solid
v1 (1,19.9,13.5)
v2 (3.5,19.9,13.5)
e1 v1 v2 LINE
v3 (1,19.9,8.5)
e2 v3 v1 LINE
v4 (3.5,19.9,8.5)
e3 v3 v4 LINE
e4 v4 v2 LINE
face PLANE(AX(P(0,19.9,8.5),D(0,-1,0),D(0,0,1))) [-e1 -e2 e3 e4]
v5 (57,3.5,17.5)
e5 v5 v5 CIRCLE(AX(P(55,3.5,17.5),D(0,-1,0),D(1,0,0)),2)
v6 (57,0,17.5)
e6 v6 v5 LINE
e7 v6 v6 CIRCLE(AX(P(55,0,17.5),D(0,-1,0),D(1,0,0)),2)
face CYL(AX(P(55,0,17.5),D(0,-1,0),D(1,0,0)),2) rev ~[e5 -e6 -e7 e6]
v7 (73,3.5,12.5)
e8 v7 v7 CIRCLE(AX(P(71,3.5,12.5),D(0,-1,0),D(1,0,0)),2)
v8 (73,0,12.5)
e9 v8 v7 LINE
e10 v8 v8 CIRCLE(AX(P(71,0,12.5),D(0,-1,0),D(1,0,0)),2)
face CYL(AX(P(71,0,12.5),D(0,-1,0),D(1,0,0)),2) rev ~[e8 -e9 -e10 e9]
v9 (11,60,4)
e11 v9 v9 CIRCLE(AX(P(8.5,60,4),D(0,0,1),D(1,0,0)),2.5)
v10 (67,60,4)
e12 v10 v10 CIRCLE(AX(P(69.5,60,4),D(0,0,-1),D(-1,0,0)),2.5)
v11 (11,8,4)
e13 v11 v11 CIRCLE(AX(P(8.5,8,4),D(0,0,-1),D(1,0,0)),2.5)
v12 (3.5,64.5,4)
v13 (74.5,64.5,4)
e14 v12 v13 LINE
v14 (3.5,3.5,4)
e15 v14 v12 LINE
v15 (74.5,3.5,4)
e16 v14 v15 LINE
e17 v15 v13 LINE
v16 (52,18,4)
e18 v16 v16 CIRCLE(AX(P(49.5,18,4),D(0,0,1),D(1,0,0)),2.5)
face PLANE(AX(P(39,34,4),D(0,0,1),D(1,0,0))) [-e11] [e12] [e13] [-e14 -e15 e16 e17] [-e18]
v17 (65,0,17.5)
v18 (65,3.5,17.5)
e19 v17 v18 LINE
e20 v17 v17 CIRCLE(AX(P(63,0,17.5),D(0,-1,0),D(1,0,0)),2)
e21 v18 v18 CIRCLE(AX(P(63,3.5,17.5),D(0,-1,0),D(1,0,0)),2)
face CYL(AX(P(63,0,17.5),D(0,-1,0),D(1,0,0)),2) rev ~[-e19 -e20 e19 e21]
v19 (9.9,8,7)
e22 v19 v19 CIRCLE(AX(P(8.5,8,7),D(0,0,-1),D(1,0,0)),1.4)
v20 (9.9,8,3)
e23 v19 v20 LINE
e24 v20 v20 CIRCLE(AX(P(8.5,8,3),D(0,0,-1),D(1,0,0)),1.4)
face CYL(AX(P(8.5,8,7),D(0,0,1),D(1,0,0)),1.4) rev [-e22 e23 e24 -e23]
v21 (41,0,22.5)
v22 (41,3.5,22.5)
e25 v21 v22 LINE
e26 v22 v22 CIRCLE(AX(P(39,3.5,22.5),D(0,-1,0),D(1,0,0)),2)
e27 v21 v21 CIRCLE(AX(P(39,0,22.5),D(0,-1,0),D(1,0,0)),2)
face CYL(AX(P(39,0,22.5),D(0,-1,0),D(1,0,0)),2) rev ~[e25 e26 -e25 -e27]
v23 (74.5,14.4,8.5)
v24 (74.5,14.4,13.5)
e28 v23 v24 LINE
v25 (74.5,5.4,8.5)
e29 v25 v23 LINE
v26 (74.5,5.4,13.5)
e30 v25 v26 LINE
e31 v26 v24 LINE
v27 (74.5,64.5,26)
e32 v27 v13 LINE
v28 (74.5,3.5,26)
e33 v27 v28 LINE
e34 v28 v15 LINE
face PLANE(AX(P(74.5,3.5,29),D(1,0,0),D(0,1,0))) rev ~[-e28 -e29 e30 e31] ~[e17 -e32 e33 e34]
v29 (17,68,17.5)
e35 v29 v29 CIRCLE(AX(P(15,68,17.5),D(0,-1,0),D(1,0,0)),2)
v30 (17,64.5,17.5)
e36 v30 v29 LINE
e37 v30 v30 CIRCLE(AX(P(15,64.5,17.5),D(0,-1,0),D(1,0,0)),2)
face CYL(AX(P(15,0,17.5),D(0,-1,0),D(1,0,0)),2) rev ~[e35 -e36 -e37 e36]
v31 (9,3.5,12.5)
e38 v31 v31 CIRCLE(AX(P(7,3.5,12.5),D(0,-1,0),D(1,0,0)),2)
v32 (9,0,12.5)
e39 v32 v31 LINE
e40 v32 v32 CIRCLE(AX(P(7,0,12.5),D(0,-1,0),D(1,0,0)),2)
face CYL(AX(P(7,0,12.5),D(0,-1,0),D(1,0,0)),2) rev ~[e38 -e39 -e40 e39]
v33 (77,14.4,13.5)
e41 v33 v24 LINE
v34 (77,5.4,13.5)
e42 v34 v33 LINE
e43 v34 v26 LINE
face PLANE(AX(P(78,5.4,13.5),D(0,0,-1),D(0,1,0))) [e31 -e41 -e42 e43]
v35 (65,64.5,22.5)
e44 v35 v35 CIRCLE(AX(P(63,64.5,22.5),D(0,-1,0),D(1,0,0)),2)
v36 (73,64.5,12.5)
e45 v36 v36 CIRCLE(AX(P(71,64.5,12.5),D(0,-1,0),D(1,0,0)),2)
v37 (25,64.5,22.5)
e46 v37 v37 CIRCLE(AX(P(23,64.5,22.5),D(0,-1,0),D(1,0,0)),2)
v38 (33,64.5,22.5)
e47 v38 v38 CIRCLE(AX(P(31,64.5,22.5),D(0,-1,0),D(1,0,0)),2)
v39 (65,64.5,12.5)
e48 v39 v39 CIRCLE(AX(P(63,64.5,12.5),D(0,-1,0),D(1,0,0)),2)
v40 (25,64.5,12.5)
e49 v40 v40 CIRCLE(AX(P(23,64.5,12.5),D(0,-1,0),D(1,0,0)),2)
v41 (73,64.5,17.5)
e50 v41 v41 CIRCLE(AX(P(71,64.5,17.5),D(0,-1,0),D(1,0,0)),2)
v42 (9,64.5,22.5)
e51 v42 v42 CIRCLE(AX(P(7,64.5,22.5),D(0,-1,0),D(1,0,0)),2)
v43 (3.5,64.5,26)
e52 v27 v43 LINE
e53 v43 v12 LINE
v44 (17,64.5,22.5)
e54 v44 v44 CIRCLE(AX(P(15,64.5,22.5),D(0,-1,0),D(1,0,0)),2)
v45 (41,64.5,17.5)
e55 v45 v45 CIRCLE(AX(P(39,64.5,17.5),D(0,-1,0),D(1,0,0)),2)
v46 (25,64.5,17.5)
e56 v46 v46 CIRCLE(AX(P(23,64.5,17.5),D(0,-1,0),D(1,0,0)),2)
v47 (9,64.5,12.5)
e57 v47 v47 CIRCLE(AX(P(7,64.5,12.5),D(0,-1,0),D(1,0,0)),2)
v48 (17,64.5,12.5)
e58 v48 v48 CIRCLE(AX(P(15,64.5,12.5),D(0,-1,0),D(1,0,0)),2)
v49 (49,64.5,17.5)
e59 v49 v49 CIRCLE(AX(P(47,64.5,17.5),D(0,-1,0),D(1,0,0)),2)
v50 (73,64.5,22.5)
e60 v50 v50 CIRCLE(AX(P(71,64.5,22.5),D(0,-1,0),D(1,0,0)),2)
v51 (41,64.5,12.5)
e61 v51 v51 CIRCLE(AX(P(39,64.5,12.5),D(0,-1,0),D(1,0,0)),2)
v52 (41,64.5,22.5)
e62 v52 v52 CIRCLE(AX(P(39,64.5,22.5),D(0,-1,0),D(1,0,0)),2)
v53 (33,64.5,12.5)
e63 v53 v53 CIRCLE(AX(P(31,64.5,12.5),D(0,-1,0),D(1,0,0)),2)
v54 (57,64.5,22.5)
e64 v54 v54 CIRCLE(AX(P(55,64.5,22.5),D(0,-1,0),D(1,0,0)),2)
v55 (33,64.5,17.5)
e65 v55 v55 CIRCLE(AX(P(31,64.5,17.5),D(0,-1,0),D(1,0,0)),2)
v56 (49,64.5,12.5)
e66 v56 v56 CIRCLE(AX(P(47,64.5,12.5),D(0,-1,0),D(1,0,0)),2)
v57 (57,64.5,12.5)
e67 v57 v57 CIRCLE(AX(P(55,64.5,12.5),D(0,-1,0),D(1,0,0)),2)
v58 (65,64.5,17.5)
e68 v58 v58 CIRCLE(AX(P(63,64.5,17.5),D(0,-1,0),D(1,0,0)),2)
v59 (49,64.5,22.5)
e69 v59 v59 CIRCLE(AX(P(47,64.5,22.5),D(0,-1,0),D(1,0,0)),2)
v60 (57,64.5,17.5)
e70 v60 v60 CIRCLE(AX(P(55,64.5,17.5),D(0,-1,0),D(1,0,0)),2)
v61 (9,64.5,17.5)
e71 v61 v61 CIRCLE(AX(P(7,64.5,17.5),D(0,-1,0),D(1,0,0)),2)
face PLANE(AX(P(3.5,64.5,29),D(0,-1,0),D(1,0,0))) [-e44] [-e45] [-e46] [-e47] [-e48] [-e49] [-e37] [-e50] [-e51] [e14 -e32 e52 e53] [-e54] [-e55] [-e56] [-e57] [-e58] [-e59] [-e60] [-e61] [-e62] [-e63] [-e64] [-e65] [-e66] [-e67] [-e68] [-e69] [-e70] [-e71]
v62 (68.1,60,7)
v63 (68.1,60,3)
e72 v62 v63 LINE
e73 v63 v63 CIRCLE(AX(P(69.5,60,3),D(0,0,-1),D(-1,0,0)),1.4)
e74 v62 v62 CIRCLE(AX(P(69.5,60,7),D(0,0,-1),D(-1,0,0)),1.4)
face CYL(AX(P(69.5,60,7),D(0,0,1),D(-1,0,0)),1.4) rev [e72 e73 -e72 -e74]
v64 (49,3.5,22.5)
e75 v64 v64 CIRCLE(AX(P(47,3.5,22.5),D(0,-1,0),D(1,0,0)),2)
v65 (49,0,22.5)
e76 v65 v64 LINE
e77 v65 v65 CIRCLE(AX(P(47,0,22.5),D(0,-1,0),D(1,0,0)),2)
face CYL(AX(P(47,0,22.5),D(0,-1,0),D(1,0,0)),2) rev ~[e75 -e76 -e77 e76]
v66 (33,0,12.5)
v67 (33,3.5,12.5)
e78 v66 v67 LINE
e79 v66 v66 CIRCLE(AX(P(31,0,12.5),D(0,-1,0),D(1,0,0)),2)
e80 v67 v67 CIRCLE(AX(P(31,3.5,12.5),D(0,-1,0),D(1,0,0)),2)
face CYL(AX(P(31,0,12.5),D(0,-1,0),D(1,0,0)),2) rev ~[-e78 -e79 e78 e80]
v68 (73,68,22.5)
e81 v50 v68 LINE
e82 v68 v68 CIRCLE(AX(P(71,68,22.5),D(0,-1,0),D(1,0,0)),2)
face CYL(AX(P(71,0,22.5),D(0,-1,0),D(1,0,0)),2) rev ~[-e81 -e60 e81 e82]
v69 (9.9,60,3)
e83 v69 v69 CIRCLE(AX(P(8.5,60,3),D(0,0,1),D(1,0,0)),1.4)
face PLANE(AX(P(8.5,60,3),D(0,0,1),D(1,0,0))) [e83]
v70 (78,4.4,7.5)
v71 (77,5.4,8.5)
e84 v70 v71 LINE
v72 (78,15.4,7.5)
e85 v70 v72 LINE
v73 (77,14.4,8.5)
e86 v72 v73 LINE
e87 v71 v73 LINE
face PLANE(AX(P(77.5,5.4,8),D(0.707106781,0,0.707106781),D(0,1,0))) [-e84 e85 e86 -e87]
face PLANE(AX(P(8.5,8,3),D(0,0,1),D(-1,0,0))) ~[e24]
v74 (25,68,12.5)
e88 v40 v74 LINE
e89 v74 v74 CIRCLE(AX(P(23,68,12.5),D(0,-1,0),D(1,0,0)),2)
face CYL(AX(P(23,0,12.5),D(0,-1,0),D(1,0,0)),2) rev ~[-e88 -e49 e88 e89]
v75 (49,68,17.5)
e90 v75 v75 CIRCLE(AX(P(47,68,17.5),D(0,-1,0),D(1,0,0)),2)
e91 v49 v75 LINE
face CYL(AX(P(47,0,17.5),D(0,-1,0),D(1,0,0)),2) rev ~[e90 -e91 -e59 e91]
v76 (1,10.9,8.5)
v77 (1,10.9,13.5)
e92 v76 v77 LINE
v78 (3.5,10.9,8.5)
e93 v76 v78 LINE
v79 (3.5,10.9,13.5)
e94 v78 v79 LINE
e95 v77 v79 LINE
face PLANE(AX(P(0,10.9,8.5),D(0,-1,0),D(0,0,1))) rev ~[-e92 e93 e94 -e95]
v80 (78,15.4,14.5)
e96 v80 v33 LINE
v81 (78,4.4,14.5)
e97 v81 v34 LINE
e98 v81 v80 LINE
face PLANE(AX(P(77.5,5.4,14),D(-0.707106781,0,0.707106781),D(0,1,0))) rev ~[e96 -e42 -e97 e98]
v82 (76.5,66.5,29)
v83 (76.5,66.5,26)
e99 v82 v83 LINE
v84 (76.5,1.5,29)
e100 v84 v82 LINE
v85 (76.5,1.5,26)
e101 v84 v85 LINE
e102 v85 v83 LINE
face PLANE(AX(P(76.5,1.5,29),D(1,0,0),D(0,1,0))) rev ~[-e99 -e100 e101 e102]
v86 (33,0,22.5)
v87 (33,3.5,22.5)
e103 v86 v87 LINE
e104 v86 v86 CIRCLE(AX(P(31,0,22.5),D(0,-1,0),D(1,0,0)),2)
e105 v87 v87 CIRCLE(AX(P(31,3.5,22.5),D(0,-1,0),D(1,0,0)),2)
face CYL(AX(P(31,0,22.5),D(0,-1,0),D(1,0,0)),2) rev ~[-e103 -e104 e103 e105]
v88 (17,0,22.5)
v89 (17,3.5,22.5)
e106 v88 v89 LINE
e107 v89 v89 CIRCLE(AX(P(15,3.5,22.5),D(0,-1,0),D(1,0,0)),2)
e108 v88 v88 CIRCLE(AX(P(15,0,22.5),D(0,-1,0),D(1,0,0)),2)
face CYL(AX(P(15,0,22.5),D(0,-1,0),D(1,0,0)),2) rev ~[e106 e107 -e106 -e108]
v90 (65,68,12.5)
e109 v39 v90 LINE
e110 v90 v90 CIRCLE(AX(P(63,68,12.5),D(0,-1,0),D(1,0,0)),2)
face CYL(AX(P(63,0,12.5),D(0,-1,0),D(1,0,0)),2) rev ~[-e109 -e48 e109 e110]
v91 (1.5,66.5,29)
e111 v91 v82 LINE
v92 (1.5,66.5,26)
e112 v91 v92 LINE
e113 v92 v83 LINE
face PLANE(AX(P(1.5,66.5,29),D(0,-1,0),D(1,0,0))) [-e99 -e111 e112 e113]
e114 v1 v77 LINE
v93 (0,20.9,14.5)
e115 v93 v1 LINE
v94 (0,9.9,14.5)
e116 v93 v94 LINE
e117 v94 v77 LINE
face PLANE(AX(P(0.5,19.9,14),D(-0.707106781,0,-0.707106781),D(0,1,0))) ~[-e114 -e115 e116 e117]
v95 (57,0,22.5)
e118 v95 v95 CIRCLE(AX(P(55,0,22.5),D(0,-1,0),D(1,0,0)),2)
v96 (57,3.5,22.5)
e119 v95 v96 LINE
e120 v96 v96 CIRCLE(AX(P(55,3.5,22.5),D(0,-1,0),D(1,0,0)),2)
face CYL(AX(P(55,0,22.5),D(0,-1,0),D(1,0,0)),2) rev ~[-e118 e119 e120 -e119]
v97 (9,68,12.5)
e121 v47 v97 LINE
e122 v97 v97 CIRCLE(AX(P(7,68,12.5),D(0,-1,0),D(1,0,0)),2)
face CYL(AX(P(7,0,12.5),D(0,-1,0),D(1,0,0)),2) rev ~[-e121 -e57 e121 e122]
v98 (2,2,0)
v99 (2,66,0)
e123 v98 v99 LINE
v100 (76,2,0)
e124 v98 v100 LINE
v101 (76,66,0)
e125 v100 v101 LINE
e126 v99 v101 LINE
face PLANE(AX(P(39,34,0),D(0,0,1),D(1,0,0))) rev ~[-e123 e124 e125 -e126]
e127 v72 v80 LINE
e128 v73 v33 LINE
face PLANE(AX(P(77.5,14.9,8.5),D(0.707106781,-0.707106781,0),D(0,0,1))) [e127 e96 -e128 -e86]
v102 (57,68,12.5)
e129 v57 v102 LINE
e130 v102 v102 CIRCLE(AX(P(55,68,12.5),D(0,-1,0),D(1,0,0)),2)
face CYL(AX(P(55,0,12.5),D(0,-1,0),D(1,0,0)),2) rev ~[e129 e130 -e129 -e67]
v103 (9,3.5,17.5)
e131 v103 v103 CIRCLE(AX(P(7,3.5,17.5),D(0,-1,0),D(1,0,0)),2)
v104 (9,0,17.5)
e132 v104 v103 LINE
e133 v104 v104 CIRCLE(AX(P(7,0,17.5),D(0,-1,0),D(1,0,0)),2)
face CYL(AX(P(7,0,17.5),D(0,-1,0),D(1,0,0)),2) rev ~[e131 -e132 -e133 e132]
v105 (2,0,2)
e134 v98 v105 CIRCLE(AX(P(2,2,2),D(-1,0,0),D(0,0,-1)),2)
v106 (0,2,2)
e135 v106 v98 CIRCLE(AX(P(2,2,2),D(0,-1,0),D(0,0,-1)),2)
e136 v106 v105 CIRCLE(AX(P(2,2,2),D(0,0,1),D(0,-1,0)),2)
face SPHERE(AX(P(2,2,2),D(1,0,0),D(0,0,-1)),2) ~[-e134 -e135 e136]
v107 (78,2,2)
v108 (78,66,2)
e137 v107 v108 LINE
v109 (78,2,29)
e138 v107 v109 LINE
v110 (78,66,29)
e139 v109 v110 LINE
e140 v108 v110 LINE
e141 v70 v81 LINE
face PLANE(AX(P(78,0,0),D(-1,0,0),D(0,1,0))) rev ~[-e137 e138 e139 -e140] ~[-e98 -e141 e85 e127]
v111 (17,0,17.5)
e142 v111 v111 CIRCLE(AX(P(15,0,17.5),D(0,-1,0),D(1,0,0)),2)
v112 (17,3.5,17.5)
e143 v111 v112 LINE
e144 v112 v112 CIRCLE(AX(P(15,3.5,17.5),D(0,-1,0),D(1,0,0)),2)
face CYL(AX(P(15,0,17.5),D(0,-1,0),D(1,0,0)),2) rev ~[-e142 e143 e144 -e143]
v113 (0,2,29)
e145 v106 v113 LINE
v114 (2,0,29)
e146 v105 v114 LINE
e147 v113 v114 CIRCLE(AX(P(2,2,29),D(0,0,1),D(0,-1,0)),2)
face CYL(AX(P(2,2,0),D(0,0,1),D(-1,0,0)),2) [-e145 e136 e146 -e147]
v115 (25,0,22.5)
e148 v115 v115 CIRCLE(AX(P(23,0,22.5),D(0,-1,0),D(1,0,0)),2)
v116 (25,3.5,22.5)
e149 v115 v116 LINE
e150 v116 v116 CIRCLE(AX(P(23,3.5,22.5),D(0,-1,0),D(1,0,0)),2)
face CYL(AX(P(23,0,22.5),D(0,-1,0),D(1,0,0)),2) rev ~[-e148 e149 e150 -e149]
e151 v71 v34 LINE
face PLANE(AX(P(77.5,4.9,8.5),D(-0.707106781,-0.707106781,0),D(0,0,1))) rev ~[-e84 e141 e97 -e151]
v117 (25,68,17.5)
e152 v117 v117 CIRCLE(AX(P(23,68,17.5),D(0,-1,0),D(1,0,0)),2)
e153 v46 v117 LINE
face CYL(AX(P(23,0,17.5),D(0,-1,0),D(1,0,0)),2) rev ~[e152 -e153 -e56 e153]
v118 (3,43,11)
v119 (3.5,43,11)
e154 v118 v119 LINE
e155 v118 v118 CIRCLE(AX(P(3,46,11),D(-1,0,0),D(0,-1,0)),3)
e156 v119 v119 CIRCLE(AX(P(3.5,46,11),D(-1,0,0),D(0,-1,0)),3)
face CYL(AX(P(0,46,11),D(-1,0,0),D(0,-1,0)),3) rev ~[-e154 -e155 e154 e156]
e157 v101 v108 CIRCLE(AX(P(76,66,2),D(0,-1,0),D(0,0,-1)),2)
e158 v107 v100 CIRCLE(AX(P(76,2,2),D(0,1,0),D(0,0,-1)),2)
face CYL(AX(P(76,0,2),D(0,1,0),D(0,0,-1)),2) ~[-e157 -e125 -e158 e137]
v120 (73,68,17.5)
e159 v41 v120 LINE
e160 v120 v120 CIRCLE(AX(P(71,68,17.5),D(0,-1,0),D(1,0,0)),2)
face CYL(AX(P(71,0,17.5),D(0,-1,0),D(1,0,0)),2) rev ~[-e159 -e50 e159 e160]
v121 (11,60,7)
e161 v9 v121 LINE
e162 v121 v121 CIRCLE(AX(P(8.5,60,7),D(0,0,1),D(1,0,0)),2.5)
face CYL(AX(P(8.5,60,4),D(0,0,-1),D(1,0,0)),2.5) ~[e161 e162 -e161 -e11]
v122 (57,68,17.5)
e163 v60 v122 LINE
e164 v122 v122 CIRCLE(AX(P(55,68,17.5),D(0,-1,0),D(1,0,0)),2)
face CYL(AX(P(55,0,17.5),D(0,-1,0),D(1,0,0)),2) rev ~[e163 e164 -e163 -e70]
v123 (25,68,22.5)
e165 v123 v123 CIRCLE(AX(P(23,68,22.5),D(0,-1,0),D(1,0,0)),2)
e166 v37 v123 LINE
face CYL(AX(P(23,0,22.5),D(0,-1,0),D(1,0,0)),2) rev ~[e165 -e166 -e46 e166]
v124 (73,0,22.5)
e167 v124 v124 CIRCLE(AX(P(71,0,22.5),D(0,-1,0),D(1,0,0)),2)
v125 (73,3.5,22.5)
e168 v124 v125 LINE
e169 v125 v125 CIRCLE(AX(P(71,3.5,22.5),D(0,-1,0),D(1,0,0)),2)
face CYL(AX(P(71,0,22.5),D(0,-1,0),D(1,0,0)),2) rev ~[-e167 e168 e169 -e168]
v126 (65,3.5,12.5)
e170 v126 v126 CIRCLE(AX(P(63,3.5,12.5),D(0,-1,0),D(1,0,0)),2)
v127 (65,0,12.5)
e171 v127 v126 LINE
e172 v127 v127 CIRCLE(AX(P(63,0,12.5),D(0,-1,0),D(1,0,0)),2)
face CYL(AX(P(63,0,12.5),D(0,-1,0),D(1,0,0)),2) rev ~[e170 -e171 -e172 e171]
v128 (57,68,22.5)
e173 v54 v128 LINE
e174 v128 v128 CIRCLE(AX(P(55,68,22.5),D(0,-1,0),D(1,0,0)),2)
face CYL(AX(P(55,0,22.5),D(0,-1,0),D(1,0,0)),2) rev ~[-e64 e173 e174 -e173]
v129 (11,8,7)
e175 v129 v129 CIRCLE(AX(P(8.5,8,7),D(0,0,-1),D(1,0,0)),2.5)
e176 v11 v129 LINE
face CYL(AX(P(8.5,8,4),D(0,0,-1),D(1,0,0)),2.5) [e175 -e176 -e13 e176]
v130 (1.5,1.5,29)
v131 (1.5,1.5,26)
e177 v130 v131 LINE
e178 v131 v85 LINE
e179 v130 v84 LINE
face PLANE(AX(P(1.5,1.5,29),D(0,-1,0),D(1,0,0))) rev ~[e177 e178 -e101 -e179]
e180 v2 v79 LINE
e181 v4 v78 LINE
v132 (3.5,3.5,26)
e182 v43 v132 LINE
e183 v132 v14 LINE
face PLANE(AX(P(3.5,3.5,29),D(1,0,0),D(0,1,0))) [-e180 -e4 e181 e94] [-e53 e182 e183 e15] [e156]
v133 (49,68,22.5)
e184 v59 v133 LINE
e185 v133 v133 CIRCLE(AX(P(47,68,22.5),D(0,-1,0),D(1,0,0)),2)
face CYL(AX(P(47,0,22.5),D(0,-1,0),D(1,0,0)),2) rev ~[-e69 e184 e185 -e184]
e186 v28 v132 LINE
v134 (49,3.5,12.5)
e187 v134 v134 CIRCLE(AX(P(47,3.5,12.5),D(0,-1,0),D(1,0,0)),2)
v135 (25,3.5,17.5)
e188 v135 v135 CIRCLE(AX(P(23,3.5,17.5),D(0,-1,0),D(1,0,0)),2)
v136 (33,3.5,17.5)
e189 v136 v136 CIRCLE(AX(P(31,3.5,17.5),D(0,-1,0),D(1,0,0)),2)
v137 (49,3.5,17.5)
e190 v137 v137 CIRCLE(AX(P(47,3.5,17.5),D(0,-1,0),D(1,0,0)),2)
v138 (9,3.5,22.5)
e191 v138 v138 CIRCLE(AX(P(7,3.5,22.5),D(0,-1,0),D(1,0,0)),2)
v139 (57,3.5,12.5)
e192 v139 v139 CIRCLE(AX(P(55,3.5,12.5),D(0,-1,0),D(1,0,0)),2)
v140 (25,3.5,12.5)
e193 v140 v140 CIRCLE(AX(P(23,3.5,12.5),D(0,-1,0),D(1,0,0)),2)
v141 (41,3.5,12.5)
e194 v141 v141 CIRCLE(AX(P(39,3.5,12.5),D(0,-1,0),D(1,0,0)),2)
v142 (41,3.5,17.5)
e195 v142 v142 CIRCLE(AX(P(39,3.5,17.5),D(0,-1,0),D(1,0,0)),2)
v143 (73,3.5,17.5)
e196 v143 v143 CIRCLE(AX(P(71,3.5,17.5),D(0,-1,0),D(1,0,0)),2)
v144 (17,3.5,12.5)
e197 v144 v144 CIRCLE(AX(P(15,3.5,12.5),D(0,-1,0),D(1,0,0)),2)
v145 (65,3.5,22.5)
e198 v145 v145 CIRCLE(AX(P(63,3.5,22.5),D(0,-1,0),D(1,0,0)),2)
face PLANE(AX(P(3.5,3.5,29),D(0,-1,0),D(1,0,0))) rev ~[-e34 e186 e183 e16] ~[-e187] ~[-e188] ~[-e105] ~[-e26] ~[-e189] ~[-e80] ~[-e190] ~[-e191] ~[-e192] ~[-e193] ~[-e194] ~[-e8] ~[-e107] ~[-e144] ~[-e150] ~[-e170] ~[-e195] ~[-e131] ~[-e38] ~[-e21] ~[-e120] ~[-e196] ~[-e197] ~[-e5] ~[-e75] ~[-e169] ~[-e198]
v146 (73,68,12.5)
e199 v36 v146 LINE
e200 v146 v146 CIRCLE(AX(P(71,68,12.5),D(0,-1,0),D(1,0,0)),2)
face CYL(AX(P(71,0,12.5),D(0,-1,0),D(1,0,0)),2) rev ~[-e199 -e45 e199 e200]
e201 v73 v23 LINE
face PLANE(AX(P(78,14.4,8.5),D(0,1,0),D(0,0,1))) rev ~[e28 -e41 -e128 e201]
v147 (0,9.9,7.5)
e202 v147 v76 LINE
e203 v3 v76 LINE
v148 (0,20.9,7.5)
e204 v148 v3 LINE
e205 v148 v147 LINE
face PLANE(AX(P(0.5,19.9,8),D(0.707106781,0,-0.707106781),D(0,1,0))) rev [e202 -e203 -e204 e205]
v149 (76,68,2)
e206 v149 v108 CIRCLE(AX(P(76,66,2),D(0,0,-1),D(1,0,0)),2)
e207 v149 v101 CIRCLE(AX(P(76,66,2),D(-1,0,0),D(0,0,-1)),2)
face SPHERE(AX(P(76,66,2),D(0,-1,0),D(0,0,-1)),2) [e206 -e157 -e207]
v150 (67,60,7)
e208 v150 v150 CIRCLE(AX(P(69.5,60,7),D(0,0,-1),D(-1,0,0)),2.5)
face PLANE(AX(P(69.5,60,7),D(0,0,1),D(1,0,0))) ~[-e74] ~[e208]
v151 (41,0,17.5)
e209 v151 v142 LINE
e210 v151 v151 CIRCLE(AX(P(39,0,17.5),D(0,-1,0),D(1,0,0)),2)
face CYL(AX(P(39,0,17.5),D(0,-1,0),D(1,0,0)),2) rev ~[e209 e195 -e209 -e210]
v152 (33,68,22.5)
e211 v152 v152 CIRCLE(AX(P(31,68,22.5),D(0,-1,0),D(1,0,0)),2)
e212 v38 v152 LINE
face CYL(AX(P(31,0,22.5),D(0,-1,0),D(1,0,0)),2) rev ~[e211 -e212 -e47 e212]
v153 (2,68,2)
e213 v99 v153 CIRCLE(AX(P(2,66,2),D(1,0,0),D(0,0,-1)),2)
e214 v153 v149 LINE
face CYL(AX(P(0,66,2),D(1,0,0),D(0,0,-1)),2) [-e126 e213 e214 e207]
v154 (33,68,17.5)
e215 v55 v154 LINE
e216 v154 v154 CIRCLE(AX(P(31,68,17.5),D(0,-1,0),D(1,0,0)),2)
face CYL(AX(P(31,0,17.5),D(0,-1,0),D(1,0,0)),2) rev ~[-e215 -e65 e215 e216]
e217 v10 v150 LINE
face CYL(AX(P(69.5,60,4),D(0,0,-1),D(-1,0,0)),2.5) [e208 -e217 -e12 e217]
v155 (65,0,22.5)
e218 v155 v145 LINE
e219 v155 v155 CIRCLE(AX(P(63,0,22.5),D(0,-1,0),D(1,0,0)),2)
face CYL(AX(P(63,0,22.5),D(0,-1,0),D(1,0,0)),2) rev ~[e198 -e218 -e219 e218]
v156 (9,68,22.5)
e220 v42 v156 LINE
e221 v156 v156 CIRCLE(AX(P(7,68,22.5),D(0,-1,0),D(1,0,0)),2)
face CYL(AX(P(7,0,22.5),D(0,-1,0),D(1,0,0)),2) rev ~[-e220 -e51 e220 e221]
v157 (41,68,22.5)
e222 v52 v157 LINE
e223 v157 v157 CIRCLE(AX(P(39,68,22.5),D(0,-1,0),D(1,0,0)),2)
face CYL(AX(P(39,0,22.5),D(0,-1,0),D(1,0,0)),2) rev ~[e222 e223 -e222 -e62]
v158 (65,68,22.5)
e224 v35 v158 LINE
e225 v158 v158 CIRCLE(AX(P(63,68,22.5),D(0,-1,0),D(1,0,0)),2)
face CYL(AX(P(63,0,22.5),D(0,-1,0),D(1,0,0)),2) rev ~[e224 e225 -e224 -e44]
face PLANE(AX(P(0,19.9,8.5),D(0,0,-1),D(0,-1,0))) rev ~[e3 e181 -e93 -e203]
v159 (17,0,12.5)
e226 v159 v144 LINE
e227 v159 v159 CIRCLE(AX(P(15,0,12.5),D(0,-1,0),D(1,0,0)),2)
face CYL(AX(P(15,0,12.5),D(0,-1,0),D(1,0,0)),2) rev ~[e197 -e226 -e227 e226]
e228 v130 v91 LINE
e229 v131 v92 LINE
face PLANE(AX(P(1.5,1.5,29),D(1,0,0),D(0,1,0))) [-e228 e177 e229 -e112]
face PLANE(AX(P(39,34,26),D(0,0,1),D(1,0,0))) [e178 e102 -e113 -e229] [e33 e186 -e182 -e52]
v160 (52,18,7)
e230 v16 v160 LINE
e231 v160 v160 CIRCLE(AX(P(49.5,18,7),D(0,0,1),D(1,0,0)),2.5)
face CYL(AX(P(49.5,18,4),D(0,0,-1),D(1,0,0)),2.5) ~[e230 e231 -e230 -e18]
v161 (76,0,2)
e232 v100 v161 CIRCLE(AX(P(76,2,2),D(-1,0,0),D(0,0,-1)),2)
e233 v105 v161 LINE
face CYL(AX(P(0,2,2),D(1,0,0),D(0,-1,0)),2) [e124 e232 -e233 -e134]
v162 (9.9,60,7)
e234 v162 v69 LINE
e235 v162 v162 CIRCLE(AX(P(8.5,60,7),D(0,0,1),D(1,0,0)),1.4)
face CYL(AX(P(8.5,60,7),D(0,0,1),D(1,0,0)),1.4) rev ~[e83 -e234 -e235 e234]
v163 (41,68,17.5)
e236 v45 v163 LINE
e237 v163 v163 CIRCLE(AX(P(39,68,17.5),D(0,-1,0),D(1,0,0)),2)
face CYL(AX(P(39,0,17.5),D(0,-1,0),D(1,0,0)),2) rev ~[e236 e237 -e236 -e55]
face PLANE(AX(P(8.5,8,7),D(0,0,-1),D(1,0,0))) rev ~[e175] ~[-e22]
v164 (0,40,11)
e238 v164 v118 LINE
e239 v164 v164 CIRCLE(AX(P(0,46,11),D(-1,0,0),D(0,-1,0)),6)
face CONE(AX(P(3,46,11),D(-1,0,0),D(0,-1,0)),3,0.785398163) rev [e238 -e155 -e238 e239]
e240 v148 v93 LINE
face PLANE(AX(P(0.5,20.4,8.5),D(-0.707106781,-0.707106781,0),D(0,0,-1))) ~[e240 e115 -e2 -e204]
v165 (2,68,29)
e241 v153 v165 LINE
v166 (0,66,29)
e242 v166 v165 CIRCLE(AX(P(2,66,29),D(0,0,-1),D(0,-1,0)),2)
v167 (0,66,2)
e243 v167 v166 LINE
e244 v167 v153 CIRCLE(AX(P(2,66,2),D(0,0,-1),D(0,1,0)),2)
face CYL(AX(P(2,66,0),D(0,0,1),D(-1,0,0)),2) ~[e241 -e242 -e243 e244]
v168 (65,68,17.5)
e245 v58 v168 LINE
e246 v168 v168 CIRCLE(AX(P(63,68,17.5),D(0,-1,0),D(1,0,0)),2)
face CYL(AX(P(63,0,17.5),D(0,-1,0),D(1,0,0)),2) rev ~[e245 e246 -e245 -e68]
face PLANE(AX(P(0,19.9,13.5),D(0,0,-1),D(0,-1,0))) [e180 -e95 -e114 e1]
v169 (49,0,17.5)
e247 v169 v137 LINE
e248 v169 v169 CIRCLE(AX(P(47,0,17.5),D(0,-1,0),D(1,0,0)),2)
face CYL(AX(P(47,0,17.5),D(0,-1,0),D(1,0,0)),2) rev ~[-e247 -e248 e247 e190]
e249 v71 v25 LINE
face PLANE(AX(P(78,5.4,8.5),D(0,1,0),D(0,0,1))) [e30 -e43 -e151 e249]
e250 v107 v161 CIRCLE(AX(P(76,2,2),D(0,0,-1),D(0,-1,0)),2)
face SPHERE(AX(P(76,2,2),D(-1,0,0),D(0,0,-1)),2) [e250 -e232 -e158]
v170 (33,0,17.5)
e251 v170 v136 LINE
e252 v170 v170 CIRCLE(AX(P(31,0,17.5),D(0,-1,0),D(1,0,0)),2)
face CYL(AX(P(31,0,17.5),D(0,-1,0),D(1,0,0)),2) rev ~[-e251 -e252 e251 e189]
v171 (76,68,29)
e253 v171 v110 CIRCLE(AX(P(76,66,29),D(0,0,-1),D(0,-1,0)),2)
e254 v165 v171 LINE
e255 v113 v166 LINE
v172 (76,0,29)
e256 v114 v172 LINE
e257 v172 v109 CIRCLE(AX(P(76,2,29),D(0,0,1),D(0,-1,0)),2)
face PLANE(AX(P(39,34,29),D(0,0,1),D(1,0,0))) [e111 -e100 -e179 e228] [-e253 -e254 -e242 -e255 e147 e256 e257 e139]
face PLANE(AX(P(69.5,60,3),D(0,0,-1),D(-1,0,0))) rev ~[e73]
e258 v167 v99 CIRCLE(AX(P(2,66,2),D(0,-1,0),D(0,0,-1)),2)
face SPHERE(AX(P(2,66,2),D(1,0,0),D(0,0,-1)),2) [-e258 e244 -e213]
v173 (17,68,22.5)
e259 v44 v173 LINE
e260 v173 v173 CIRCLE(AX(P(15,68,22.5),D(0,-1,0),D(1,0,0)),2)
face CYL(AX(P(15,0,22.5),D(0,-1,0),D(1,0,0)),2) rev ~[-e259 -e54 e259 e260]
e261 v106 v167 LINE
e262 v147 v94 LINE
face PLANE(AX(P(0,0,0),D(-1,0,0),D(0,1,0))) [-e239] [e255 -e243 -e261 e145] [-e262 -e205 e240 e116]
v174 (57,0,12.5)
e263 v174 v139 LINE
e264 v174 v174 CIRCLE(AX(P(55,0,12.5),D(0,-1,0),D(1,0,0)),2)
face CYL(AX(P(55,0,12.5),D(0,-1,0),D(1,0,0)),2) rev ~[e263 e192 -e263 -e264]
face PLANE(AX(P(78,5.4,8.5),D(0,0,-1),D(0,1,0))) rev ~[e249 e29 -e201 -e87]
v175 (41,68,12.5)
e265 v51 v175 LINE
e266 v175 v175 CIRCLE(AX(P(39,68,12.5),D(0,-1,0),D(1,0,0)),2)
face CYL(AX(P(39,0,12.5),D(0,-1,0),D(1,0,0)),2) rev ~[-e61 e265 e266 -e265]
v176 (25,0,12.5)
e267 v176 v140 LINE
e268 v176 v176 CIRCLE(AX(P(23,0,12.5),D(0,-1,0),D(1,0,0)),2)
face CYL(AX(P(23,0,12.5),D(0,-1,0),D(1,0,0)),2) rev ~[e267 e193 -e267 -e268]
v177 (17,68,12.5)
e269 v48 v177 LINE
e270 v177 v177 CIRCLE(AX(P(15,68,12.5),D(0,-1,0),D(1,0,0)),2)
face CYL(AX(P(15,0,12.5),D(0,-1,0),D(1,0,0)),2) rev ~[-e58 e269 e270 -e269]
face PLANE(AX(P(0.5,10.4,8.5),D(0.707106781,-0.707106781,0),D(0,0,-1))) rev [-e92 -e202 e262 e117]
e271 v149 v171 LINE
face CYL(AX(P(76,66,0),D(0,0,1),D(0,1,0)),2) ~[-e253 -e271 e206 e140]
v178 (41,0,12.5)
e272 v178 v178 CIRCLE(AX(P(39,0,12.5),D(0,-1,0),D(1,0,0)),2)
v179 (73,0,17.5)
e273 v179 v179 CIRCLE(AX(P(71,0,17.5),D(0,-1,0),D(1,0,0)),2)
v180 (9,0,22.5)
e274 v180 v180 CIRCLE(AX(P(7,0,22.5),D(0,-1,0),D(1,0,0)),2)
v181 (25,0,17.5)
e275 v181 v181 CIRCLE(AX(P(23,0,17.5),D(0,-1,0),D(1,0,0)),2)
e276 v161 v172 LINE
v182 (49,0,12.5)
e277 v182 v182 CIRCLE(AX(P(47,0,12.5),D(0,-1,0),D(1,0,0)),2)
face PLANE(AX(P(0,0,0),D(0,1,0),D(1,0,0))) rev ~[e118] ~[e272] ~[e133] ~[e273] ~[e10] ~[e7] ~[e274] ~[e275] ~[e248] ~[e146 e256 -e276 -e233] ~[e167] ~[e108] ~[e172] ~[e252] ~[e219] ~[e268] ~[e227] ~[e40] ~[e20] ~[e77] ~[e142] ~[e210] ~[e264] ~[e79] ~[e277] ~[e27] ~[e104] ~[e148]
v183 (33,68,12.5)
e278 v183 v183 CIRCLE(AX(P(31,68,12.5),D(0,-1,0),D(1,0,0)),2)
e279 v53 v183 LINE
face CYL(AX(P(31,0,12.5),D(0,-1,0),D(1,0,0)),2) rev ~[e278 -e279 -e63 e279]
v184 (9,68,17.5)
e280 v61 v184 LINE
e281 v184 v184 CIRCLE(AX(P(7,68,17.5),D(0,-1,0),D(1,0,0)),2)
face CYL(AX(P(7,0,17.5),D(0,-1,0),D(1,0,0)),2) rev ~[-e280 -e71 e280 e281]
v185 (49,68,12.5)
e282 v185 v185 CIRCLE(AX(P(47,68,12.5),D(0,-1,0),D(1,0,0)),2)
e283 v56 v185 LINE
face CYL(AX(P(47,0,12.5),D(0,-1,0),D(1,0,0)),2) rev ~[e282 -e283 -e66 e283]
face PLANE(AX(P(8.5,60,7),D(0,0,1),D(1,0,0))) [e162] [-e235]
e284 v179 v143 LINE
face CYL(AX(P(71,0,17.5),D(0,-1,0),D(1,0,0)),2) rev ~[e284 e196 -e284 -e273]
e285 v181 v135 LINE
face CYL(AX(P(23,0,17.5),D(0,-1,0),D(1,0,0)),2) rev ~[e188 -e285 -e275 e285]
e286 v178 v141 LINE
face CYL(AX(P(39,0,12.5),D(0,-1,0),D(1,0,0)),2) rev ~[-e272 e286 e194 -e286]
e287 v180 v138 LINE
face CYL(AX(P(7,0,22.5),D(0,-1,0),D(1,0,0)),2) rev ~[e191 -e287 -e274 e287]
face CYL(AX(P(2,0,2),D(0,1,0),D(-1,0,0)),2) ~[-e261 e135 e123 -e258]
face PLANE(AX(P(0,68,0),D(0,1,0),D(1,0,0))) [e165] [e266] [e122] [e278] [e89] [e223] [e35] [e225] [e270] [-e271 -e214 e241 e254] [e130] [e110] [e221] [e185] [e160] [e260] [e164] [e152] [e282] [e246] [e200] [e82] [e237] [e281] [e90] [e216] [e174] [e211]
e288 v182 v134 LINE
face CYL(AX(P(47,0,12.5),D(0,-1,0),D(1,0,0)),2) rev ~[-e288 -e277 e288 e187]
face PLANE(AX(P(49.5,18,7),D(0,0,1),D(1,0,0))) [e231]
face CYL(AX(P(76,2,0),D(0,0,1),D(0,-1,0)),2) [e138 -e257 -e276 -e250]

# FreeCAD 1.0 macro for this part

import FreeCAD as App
import Part
import Sketcher
Q = App.Units.Quantity


def edges_at(feature, points):
    """Names of the edges that pass closest to the given points."""
    edges = feature.Shape.Edges
    near = lambda p: min(range(len(edges)), key=lambda i: edges[i].distToShape(Part.Vertex(*p))[0])
    return sorted({f"Edge{near(p) + 1}" for p in points})


def add_polygon(sketch, points):
    """Adds a closed chain of lines whose ends are joined by coincident constraints."""
    first, n = sketch.GeometryCount, len(points)
    for a, b in zip(points, points[1:] + points[:1]):
        sketch.addGeometry(Part.LineSegment(App.Vector(*a, 0), App.Vector(*b, 0)), False)
    for i in range(n):
        sketch.addConstraint(Sketcher.Constraint("Coincident", first + i, 2, first + (i + 1) % n, 1))

doc = App.newDocument("Part")
body = doc.addObject("PartDesign::Body", "Body")

# Sketch on XY plane
sketch1 = body.newObject("Sketcher::SketchObject", "Sketch")
sketch1.AttachmentSupport = (doc.getObject("XY_Plane"), [""])
sketch1.MapMode = "FlatFace"
add_polygon(sketch1, [(0, 68), (0, 0), (78, 0), (78, 68)])  # lines 0-3
sketch1.addConstraint([
    Sketcher.Constraint("Vertical", 0),
    Sketcher.Constraint("Horizontal", 1),
    Sketcher.Constraint("Vertical", 2),
    Sketcher.Constraint("Horizontal", 3),
    Sketcher.Constraint("Coincident", 0, 2, -1, 1),
    Sketcher.Constraint("DistanceX", 1, 1, 1, 2, Q("78 mm")),
    Sketcher.Constraint("DistanceY", 0, 2, 0, 1, Q("68 mm")),
])
pad1 = body.newObject("PartDesign::Pad", "Pad")
pad1.Profile = sketch1
pad1.Length = 29

# Sketch on XY plane
sketch2 = body.newObject("Sketcher::SketchObject", "Sketch001")
sketch2.AttachmentSupport = (doc.getObject("XY_Plane"), [""])
sketch2.MapMode = "FlatFace"
sketch2.AttachmentOffset = App.Placement(App.Vector(0, 0, 29), App.Rotation())
add_polygon(sketch2, [(3.5, 64.5), (3.5, 3.5), (74.5, 3.5), (74.5, 64.5)])  # lines 0-3
sketch2.addConstraint([
    Sketcher.Constraint("Vertical", 0),
    Sketcher.Constraint("Horizontal", 1),
    Sketcher.Constraint("Vertical", 2),
    Sketcher.Constraint("Horizontal", 3),
    Sketcher.Constraint("DistanceX", 1, 1, 1, 2, Q("71 mm")),
    Sketcher.Constraint("DistanceY", 0, 2, 0, 1, Q("61 mm")),
    Sketcher.Constraint("DistanceX", -1, 1, 0, 2, Q("3.5 mm")),
    Sketcher.Constraint("DistanceY", -1, 1, 0, 2, Q("3.5 mm")),
])
pocket1 = body.newObject("PartDesign::Pocket", "Pocket")
pocket1.Profile = sketch2
pocket1.Length = 25

# Sketch on XY plane
sketch3 = body.newObject("Sketcher::SketchObject", "Sketch002")
sketch3.AttachmentSupport = (doc.getObject("XY_Plane"), [""])
sketch3.MapMode = "FlatFace"
sketch3.AttachmentOffset = App.Placement(App.Vector(0, 0, 4), App.Rotation())
sketch3.addGeometry(Part.Circle(App.Vector(8.5, 60, 0), App.Vector(0, 0, 1), 2.5), False)
sketch3.addConstraint([
    Sketcher.Constraint("Diameter", 0, Q("5 mm")),
    Sketcher.Constraint("DistanceY", -1, 1, 0, 3, Q("60 mm")),
    Sketcher.Constraint("DistanceX", -1, 1, 0, 3, Q("8.5 mm")),
])
pad2 = body.newObject("PartDesign::Pad", "Pad001")
pad2.Profile = sketch3
pad2.Length = 3

# Sketch on XY plane
sketch4 = body.newObject("Sketcher::SketchObject", "Sketch003")
sketch4.AttachmentSupport = (doc.getObject("XY_Plane"), [""])
sketch4.MapMode = "FlatFace"
sketch4.AttachmentOffset = App.Placement(App.Vector(0, 0, 4), App.Rotation())
sketch4.addGeometry(Part.Circle(App.Vector(8.5, 8, 0), App.Vector(0, 0, 1), 2.5), False)
sketch4.addConstraint([
    Sketcher.Constraint("Diameter", 0, Q("5 mm")),
    Sketcher.Constraint("DistanceY", -1, 1, 0, 3, Q("8 mm")),
    Sketcher.Constraint("DistanceX", -1, 1, 0, 3, Q("8.5 mm")),
])
pad3 = body.newObject("PartDesign::Pad", "Pad002")
pad3.Profile = sketch4
pad3.Length = 3
doc.recompute()

datumplane = body.newObject("PartDesign::Plane", "DatumPlane")
datumplane.AttachmentSupport = (doc.getObject("YZ_Plane"), [""])
datumplane.MapMode = "FlatFace"
datumplane.AttachmentOffset = App.Placement(App.Vector(0, 0, 39), App.Rotation())
mirrored = body.newObject("PartDesign::Mirrored", "Mirrored")
mirrored.Originals = [pad2, pad3]
mirrored.MirrorPlane = (datumplane, [""])
body.Tip = mirrored

# Sketch on XY plane
sketch5 = body.newObject("Sketcher::SketchObject", "Sketch004")
sketch5.AttachmentSupport = (doc.getObject("XY_Plane"), [""])
sketch5.MapMode = "FlatFace"
sketch5.AttachmentOffset = App.Placement(App.Vector(0, 0, 7), App.Rotation())
sketch5.addGeometry(Part.Circle(App.Vector(69.5, 8, 0), App.Vector(0, 0, 1), 3.111428), False)
sketch5.addConstraint([
    Sketcher.Constraint("DistanceY", -1, 1, 0, 3, Q("8 mm")),
    Sketcher.Constraint("DistanceX", -1, 1, 0, 3, Q("69.5 mm")),
    Sketcher.Constraint("Diameter", 0, Q("6.222856 mm")),
])
pocket2 = body.newObject("PartDesign::Pocket", "Pocket001")
pocket2.Profile = sketch5
pocket2.Length = 3

# Sketch on XY plane
sketch6 = body.newObject("Sketcher::SketchObject", "Sketch005")
sketch6.AttachmentSupport = (doc.getObject("XY_Plane"), [""])
sketch6.MapMode = "FlatFace"
sketch6.AttachmentOffset = App.Placement(App.Vector(0, 0, 7), App.Rotation())
sketch6.addGeometry(Part.Circle(App.Vector(8.5, 60, 0), App.Vector(0, 0, 1), 1.4), False)
sketch6.addConstraint([
    Sketcher.Constraint("Diameter", 0, Q("2.8 mm")),
    Sketcher.Constraint("DistanceY", -1, 1, 0, 3, Q("60 mm")),
    Sketcher.Constraint("DistanceX", -1, 1, 0, 3, Q("8.5 mm")),
])
pocket3 = body.newObject("PartDesign::Pocket", "Pocket002")
pocket3.Profile = sketch6
pocket3.Length = 4

# Sketch on XY plane
sketch7 = body.newObject("Sketcher::SketchObject", "Sketch006")
sketch7.AttachmentSupport = (doc.getObject("XY_Plane"), [""])
sketch7.MapMode = "FlatFace"
sketch7.AttachmentOffset = App.Placement(App.Vector(0, 0, 7), App.Rotation())
sketch7.addGeometry(Part.Circle(App.Vector(69.5, 60, 0), App.Vector(0, 0, 1), 1.4), False)
sketch7.addConstraint([
    Sketcher.Constraint("Diameter", 0, Q("2.8 mm")),
    Sketcher.Constraint("DistanceY", -1, 1, 0, 3, Q("60 mm")),
    Sketcher.Constraint("DistanceX", -1, 1, 0, 3, Q("69.5 mm")),
])
pocket4 = body.newObject("PartDesign::Pocket", "Pocket003")
pocket4.Profile = sketch7
pocket4.Length = 4
doc.recompute()

datumplane2 = body.newObject("PartDesign::Plane", "DatumPlane001")
datumplane2.AttachmentSupport = (doc.getObject("XZ_Plane"), [""])
datumplane2.MapMode = "FlatFace"
datumplane2.AttachmentOffset = App.Placement(App.Vector(0, 0, -34), App.Rotation())
mirrored2 = body.newObject("PartDesign::Mirrored", "Mirrored001")
mirrored2.Originals = [pocket3, pocket4]
mirrored2.MirrorPlane = (datumplane2, [""])
body.Tip = mirrored2

# Sketch on XY plane
sketch8 = body.newObject("Sketcher::SketchObject", "Sketch007")
sketch8.AttachmentSupport = (doc.getObject("XY_Plane"), [""])
sketch8.MapMode = "FlatFace"
sketch8.AttachmentOffset = App.Placement(App.Vector(0, 0, 4), App.Rotation())
sketch8.addGeometry(Part.Circle(App.Vector(49.5, 18, 0), App.Vector(0, 0, 1), 2.5), False)
sketch8.addConstraint([
    Sketcher.Constraint("Diameter", 0, Q("5 mm")),
    Sketcher.Constraint("DistanceY", -1, 1, 0, 3, Q("18 mm")),
    Sketcher.Constraint("DistanceX", -1, 1, 0, 3, Q("49.5 mm")),
])
pad4 = body.newObject("PartDesign::Pad", "Pad003")
pad4.Profile = sketch8
pad4.Length = 3

# Sketch on XY plane
sketch9 = body.newObject("Sketcher::SketchObject", "Sketch008")
sketch9.AttachmentSupport = (doc.getObject("XY_Plane"), [""])
sketch9.MapMode = "FlatFace"
sketch9.AttachmentOffset = App.Placement(App.Vector(0, 0, 7), App.Rotation())
sketch9.addGeometry(Part.Circle(App.Vector(69.5, 60, 0), App.Vector(0, 0, 1), 1.1), False)
sketch9.addConstraint([
    Sketcher.Constraint("Diameter", 0, Q("2.2 mm")),
    Sketcher.Constraint("DistanceY", -1, 1, 0, 3, Q("60 mm")),
    Sketcher.Constraint("DistanceX", -1, 1, 0, 3, Q("69.5 mm")),
])
pocket5 = body.newObject("PartDesign::Pocket", "Pocket004")
pocket5.Profile = sketch9
pocket5.Length = 3

# Sketch on YZ plane
sketch10 = body.newObject("Sketcher::SketchObject", "Sketch009")
sketch10.AttachmentSupport = (doc.getObject("YZ_Plane"), [""])
sketch10.MapMode = "FlatFace"
sketch10.AttachmentOffset = App.Placement(App.Vector(0, 0, 78), App.Rotation())
add_polygon(sketch10, [(5.4, 13.5), (5.4, 8.5), (14.4, 8.5), (14.4, 13.5)])  # lines 0-3
sketch10.addConstraint([
    Sketcher.Constraint("Vertical", 0),
    Sketcher.Constraint("Horizontal", 1),
    Sketcher.Constraint("Vertical", 2),
    Sketcher.Constraint("Horizontal", 3),
    Sketcher.Constraint("DistanceX", 1, 1, 1, 2, Q("9 mm")),
    Sketcher.Constraint("DistanceY", 0, 2, 0, 1, Q("5 mm")),
    Sketcher.Constraint("DistanceX", -1, 1, 0, 2, Q("5.4 mm")),
    Sketcher.Constraint("DistanceY", -1, 1, 0, 2, Q("8.5 mm")),
])
pocket6 = body.newObject("PartDesign::Pocket", "Pocket005")
pocket6.Profile = sketch10
pocket6.Length = 3.5

# Sketch on YZ plane
sketch11 = body.newObject("Sketcher::SketchObject", "Sketch010")
sketch11.AttachmentSupport = (doc.getObject("YZ_Plane"), [""])
sketch11.MapMode = "FlatFace"
add_polygon(sketch11, [(19.9, 13.5), (19.9, 8.5), (10.9, 8.5), (10.9, 13.5)])  # lines 0-3
sketch11.addConstraint([
    Sketcher.Constraint("Vertical", 0),
    Sketcher.Constraint("Horizontal", 1),
    Sketcher.Constraint("Vertical", 2),
    Sketcher.Constraint("Horizontal", 3),
    Sketcher.Constraint("DistanceX", 1, 2, 1, 1, Q("9 mm")),
    Sketcher.Constraint("DistanceY", 0, 2, 0, 1, Q("5 mm")),
    Sketcher.Constraint("DistanceX", -1, 1, 0, 2, Q("19.9 mm")),
    Sketcher.Constraint("DistanceY", -1, 1, 0, 2, Q("8.5 mm")),
])
pocket7 = body.newObject("PartDesign::Pocket", "Pocket006")
pocket7.Profile = sketch11
pocket7.Length = 3.5
pocket7.Reversed = True

# Sketch on YZ plane
sketch12 = body.newObject("Sketcher::SketchObject", "Sketch011")
sketch12.AttachmentSupport = (doc.getObject("YZ_Plane"), [""])
sketch12.MapMode = "FlatFace"
sketch12.addGeometry(Part.Circle(App.Vector(46, 11, 0), App.Vector(0, 0, 1), 3), False)
sketch12.addConstraint([
    Sketcher.Constraint("Diameter", 0, Q("6 mm")),
    Sketcher.Constraint("DistanceX", -1, 1, 0, 3, Q("46 mm")),
    Sketcher.Constraint("DistanceY", -1, 1, 0, 3, Q("11 mm")),
])
pocket8 = body.newObject("PartDesign::Pocket", "Pocket007")
pocket8.Profile = sketch12
pocket8.Length = 3.5
pocket8.Reversed = True
doc.recompute()

fillet = body.newObject("PartDesign::Fillet", "Fillet")
fillet.Base = (pocket8, edges_at(pocket8, [
    (39, 0, 0),
    (78, 34, 0),
    (39, 68, 0),
    (0, 34, 0),
    (78, 0, 14.5),
    (0, 68, 14.5),
    (78, 68, 14.5),
    (0, 0, 14.5),
]))
fillet.Radius = 2
doc.recompute()

chamfer = body.newObject("PartDesign::Chamfer", "Chamfer")
chamfer.Base = (fillet, edges_at(fillet, [
    (78, 9.9, 8.5),
    (78, 5.4, 11),
    (78, 9.9, 13.5),
    (78, 14.4, 11),
    (0, 15.4, 8.5),
    (0, 19.9, 11),
    (0, 15.4, 13.5),
    (0, 10.9, 11),
]))
chamfer.Size = 1
doc.recompute()

chamfer2 = body.newObject("PartDesign::Chamfer", "Chamfer001")
chamfer2.Base = (chamfer, edges_at(chamfer, [(0, 49, 11)]))
chamfer2.Size = 3

# Sketch on XZ plane
sketch13 = body.newObject("Sketcher::SketchObject", "Sketch012")
sketch13.AttachmentSupport = (doc.getObject("XZ_Plane"), [""])
sketch13.MapMode = "FlatFace"
sketch13.addGeometry(Part.Circle(App.Vector(7, 12.5, 0), App.Vector(0, 0, 1), 2), False)
sketch13.addConstraint([
    Sketcher.Constraint("Diameter", 0, Q("4 mm")),
    Sketcher.Constraint("DistanceX", -1, 1, 0, 3, Q("7 mm")),
    Sketcher.Constraint("DistanceY", -1, 1, 0, 3, Q("12.5 mm")),
])
pocket9 = body.newObject("PartDesign::Pocket", "Pocket008")
pocket9.Profile = sketch13
pocket9.Type = "ThroughAll"

# Sketch on XZ plane
sketch14 = body.newObject("Sketcher::SketchObject", "Sketch013")
sketch14.AttachmentSupport = (doc.getObject("XZ_Plane"), [""])
sketch14.MapMode = "FlatFace"
sketch14.addGeometry(Part.Circle(App.Vector(15, 12.5, 0), App.Vector(0, 0, 1), 2), False)
sketch14.addConstraint([
    Sketcher.Constraint("Diameter", 0, Q("4 mm")),
    Sketcher.Constraint("DistanceX", -1, 1, 0, 3, Q("15 mm")),
    Sketcher.Constraint("DistanceY", -1, 1, 0, 3, Q("12.5 mm")),
])
pocket10 = body.newObject("PartDesign::Pocket", "Pocket009")
pocket10.Profile = sketch14
pocket10.Type = "ThroughAll"

# Sketch on XZ plane
sketch15 = body.newObject("Sketcher::SketchObject", "Sketch014")
sketch15.AttachmentSupport = (doc.getObject("XZ_Plane"), [""])
sketch15.MapMode = "FlatFace"
sketch15.addGeometry(Part.Circle(App.Vector(23, 12.5, 0), App.Vector(0, 0, 1), 2), False)
sketch15.addConstraint([
    Sketcher.Constraint("Diameter", 0, Q("4 mm")),
    Sketcher.Constraint("DistanceX", -1, 1, 0, 3, Q("23 mm")),
    Sketcher.Constraint("DistanceY", -1, 1, 0, 3, Q("12.5 mm")),
])
pocket11 = body.newObject("PartDesign::Pocket", "Pocket010")
pocket11.Profile = sketch15
pocket11.Type = "ThroughAll"

# Sketch on XZ plane
sketch16 = body.newObject("Sketcher::SketchObject", "Sketch015")
sketch16.AttachmentSupport = (doc.getObject("XZ_Plane"), [""])
sketch16.MapMode = "FlatFace"
sketch16.addGeometry(Part.Circle(App.Vector(31, 12.5, 0), App.Vector(0, 0, 1), 2), False)
sketch16.addConstraint([
    Sketcher.Constraint("Diameter", 0, Q("4 mm")),
    Sketcher.Constraint("DistanceX", -1, 1, 0, 3, Q("31 mm")),
    Sketcher.Constraint("DistanceY", -1, 1, 0, 3, Q("12.5 mm")),
])
pocket12 = body.newObject("PartDesign::Pocket", "Pocket011")
pocket12.Profile = sketch16
pocket12.Type = "ThroughAll"

# Sketch on XZ plane
sketch17 = body.newObject("Sketcher::SketchObject", "Sketch016")
sketch17.AttachmentSupport = (doc.getObject("XZ_Plane"), [""])
sketch17.MapMode = "FlatFace"
sketch17.addGeometry(Part.Circle(App.Vector(39, 12.5, 0), App.Vector(0, 0, 1), 2), False)
sketch17.addConstraint([
    Sketcher.Constraint("Diameter", 0, Q("4 mm")),
    Sketcher.Constraint("DistanceX", -1, 1, 0, 3, Q("39 mm")),
    Sketcher.Constraint("DistanceY", -1, 1, 0, 3, Q("12.5 mm")),
])
pocket13 = body.newObject("PartDesign::Pocket", "Pocket012")
pocket13.Profile = sketch17
pocket13.Type = "ThroughAll"

# Sketch on XZ plane
sketch18 = body.newObject("Sketcher::SketchObject", "Sketch017")
sketch18.AttachmentSupport = (doc.getObject("XZ_Plane"), [""])
sketch18.MapMode = "FlatFace"
sketch18.addGeometry(Part.Circle(App.Vector(47, 12.5, 0), App.Vector(0, 0, 1), 2), False)
sketch18.addConstraint([
    Sketcher.Constraint("Diameter", 0, Q("4 mm")),
    Sketcher.Constraint("DistanceX", -1, 1, 0, 3, Q("47 mm")),
    Sketcher.Constraint("DistanceY", -1, 1, 0, 3, Q("12.5 mm")),
])
pocket14 = body.newObject("PartDesign::Pocket", "Pocket013")
pocket14.Profile = sketch18
pocket14.Type = "ThroughAll"

# Sketch on XZ plane
sketch19 = body.newObject("Sketcher::SketchObject", "Sketch018")
sketch19.AttachmentSupport = (doc.getObject("XZ_Plane"), [""])
sketch19.MapMode = "FlatFace"
sketch19.addGeometry(Part.Circle(App.Vector(55, 12.5, 0), App.Vector(0, 0, 1), 2), False)
sketch19.addConstraint([
    Sketcher.Constraint("Diameter", 0, Q("4 mm")),
    Sketcher.Constraint("DistanceX", -1, 1, 0, 3, Q("55 mm")),
    Sketcher.Constraint("DistanceY", -1, 1, 0, 3, Q("12.5 mm")),
])
pocket15 = body.newObject("PartDesign::Pocket", "Pocket014")
pocket15.Profile = sketch19
pocket15.Type = "ThroughAll"

# Sketch on XZ plane
sketch20 = body.newObject("Sketcher::SketchObject", "Sketch019")
sketch20.AttachmentSupport = (doc.getObject("XZ_Plane"), [""])
sketch20.MapMode = "FlatFace"
sketch20.addGeometry(Part.Circle(App.Vector(63, 12.5, 0), App.Vector(0, 0, 1), 2), False)
sketch20.addConstraint([
    Sketcher.Constraint("Diameter", 0, Q("4 mm")),
    Sketcher.Constraint("DistanceX", -1, 1, 0, 3, Q("63 mm")),
    Sketcher.Constraint("DistanceY", -1, 1, 0, 3, Q("12.5 mm")),
])
pocket16 = body.newObject("PartDesign::Pocket", "Pocket015")
pocket16.Profile = sketch20
pocket16.Type = "ThroughAll"

# Sketch on XZ plane
sketch21 = body.newObject("Sketcher::SketchObject", "Sketch020")
sketch21.AttachmentSupport = (doc.getObject("XZ_Plane"), [""])
sketch21.MapMode = "FlatFace"
sketch21.addGeometry(Part.Circle(App.Vector(71, 12.5, 0), App.Vector(0, 0, 1), 2), False)
sketch21.addConstraint([
    Sketcher.Constraint("Diameter", 0, Q("4 mm")),
    Sketcher.Constraint("DistanceX", -1, 1, 0, 3, Q("71 mm")),
    Sketcher.Constraint("DistanceY", -1, 1, 0, 3, Q("12.5 mm")),
])
pocket17 = body.newObject("PartDesign::Pocket", "Pocket016")
pocket17.Profile = sketch21
pocket17.Type = "ThroughAll"
doc.recompute()

linearpattern = body.newObject("PartDesign::LinearPattern", "LinearPattern")
linearpattern.Originals = [pocket9, pocket10, pocket11, pocket12, pocket13, pocket14, pocket15, pocket16, pocket17]
linearpattern.Direction = (doc.getObject("Z_Axis"), [""])
linearpattern.Mode = "offset"
linearpattern.Offset = 5
linearpattern.Occurrences = 3
body.Tip = linearpattern

# Sketch on XY plane
sketch22 = body.newObject("Sketcher::SketchObject", "Sketch021")
sketch22.AttachmentSupport = (doc.getObject("XY_Plane"), [""])
sketch22.MapMode = "FlatFace"
sketch22.AttachmentOffset = App.Placement(App.Vector(0, 0, 29), App.Rotation())
add_polygon(sketch22, [(1.5, 66.5), (1.5, 1.5), (76.5, 1.5), (76.5, 66.5)])  # lines 0-3
sketch22.addConstraint([
    Sketcher.Constraint("Vertical", 0),
    Sketcher.Constraint("Horizontal", 1),
    Sketcher.Constraint("Vertical", 2),
    Sketcher.Constraint("Horizontal", 3),
    Sketcher.Constraint("DistanceX", 1, 1, 1, 2, Q("75 mm")),
    Sketcher.Constraint("DistanceY", 0, 2, 0, 1, Q("65 mm")),
    Sketcher.Constraint("DistanceX", -1, 1, 0, 2, Q("1.5 mm")),
    Sketcher.Constraint("DistanceY", -1, 1, 0, 2, Q("1.5 mm")),
])
pocket18 = body.newObject("PartDesign::Pocket", "Pocket017")
pocket18.Profile = sketch22
pocket18.Length = 3

# Sketch on XY plane
sketch23 = body.newObject("Sketcher::SketchObject", "Sketch022")
sketch23.AttachmentSupport = (doc.getObject("XY_Plane"), [""])
sketch23.MapMode = "FlatFace"
sketch23.AttachmentOffset = App.Placement(App.Vector(0, 0, 3), App.Rotation())
sketch23.addGeometry(Part.Circle(App.Vector(69.449699, 7.994386, 0), App.Vector(0, 0, 1), 1.564418), False)
sketch23.addConstraint([
    Sketcher.Constraint("Diameter", 0, Q("3.128836 mm")),
    Sketcher.Constraint("DistanceX", -1, 1, 0, 3, Q("69.449699 mm")),
    Sketcher.Constraint("DistanceY", -1, 1, 0, 3, Q("7.994386 mm")),
])
pad5 = body.newObject("PartDesign::Pad", "Pad004")
pad5.Profile = sketch23
pad5.Length = 1

doc.recompute()
